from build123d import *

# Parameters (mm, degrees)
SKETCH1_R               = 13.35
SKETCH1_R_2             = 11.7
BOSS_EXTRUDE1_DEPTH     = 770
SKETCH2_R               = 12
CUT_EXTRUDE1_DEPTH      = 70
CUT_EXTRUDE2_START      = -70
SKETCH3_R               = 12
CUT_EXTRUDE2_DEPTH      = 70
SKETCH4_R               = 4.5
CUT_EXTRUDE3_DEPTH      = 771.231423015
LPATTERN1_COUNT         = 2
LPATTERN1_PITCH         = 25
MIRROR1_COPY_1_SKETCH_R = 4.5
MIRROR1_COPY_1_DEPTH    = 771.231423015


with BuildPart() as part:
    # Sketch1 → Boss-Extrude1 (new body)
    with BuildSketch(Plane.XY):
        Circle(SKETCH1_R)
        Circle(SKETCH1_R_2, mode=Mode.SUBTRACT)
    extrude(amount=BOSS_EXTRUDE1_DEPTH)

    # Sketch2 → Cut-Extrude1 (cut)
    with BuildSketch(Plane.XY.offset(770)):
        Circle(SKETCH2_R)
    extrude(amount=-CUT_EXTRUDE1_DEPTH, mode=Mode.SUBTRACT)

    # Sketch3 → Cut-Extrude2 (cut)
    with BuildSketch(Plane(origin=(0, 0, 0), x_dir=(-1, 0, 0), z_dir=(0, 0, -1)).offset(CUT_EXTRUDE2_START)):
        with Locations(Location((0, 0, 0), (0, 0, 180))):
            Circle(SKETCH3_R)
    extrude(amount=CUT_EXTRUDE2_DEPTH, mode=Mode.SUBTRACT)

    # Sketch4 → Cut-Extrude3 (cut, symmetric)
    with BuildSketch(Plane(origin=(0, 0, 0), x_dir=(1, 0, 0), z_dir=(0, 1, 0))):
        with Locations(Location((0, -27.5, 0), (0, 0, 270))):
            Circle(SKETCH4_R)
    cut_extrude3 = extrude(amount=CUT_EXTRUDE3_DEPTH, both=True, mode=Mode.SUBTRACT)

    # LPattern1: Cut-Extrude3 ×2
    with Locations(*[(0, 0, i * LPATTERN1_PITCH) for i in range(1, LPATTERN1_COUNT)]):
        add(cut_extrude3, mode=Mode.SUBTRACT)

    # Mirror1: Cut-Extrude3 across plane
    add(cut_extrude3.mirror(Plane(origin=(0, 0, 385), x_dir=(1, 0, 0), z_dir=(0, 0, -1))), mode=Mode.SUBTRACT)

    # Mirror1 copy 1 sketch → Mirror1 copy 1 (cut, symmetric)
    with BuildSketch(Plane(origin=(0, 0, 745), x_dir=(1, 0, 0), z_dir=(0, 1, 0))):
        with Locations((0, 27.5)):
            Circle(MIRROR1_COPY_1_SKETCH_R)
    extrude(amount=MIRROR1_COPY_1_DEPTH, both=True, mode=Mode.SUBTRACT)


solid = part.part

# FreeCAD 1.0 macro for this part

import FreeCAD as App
import Part
import Sketcher
Q = App.Units.Quantity

doc = App.newDocument("Part")
params = doc.addObject("Spreadsheet::Sheet", "Params")
for row, (alias, value) in enumerate([
    ("sketch1_diameter", "26.7 mm"),
    ("sketch1_diameter2", "23.4 mm"),
    ("pad1_length", "770 mm"),
    ("sketch2_diameter", "24 mm"),
    ("pocket1_length", "70 mm"),
    ("sketch3_diameter", "24 mm"),
    ("pocket2_length", "70 mm"),
    ("sketch4_diameter", "9 mm"),
    ("pocket3_length", "1542.462846 mm"),
    ("linearpattern_pitch", "25 mm"),
    ("sketch5_diameter", "9 mm"),
    ("pocket4_length", "1542.462846 mm"),
], start=1):
    params.set(f"A{row}", alias)
    params.set(f"B{row}", "=" + value)
    params.setAlias(f"B{row}", alias)

body = doc.addObject("PartDesign::Body", "Body")

# Sketch on XY plane
sketch1 = body.newObject("Sketcher::SketchObject", "Sketch")
sketch1.AttachmentSupport = (doc.getObject("XY_Plane"), [""])
sketch1.MapMode = "FlatFace"
sketch1.addGeometry([
    Part.Circle(App.Vector(0, 0, 0), App.Vector(0, 0, 1), 13),
    Part.Circle(App.Vector(0, 0, 0), App.Vector(0, 0, 1), 12),
], False)
sketch1.addConstraint([
    Sketcher.Constraint("Coincident", 0, 3, -1, 1),
    Sketcher.Constraint("Coincident", 1, 3, -1, 1),
    Sketcher.Constraint("Diameter", 0, Q("26.7 mm")),
    Sketcher.Constraint("Diameter", 1, Q("23.4 mm")),
])
sketch1.setExpression("Constraints[2]", "Params.sketch1_diameter")
sketch1.setExpression("Constraints[3]", "Params.sketch1_diameter2")
pad1 = body.newObject("PartDesign::Pad", "Pad")
pad1.Profile = sketch1
pad1.setExpression("Length", "Params.pad1_length")

# Sketch on XY plane
sketch2 = body.newObject("Sketcher::SketchObject", "Sketch001")
sketch2.AttachmentSupport = (doc.getObject("XY_Plane"), [""])
sketch2.MapMode = "FlatFace"
sketch2.AttachmentOffset = App.Placement(App.Vector(0, 0, 770), App.Rotation())
sketch2.addGeometry(Part.Circle(App.Vector(0, 0, 0), App.Vector(0, 0, 1), 12), False)
sketch2.addConstraint([
    Sketcher.Constraint("Coincident", 0, 3, -1, 1),
    Sketcher.Constraint("Diameter", 0, Q("24 mm")),
])
sketch2.setExpression("Constraints[1]", "Params.sketch2_diameter")
pocket1 = body.newObject("PartDesign::Pocket", "Pocket")
pocket1.Profile = sketch2
pocket1.setExpression("Length", "Params.pocket1_length")

# Sketch on XY plane
sketch3 = body.newObject("Sketcher::SketchObject", "Sketch002")
sketch3.AttachmentSupport = (doc.getObject("XY_Plane"), [""])
sketch3.MapMode = "FlatFace"
sketch3.AttachmentOffset = App.Placement(App.Vector(0, 0, 70), App.Rotation())
sketch3.addGeometry(Part.Circle(App.Vector(0, 0, 0), App.Vector(0, 0, 1), 12), False)
sketch3.addConstraint([
    Sketcher.Constraint("Coincident", 0, 3, -1, 1),
    Sketcher.Constraint("Diameter", 0, Q("24 mm")),
])
sketch3.setExpression("Constraints[1]", "Params.sketch3_diameter")
pocket2 = body.newObject("PartDesign::Pocket", "Pocket001")
pocket2.Profile = sketch3
pocket2.setExpression("Length", "Params.pocket2_length")

# Sketch on XZ plane
sketch4 = body.newObject("Sketcher::SketchObject", "Sketch003")
sketch4.AttachmentSupport = (doc.getObject("XZ_Plane"), [""])
sketch4.MapMode = "FlatFace"
sketch4.addGeometry(Part.Circle(App.Vector(0, 27.5, 0), App.Vector(0, 0, 1), 4.5), False)
sketch4.addConstraint([
    Sketcher.Constraint("PointOnObject", 0, 3, -2),
    Sketcher.Constraint("Diameter", 0, Q("9 mm")),
    Sketcher.Constraint("DistanceY", -1, 1, 0, 3, Q("27.5 mm")),
])
sketch4.setExpression("Constraints[1]", "Params.sketch4_diameter")
pocket3 = body.newObject("PartDesign::Pocket", "Pocket002")
pocket3.Profile = sketch4
pocket3.setExpression("Length", "Params.pocket3_length")
pocket3.Midplane = True
doc.recompute()

linearpattern = body.newObject("PartDesign::LinearPattern", "LinearPattern")
linearpattern.Originals = [pocket3]
linearpattern.Direction = (doc.getObject("Z_Axis"), [""])
linearpattern.Mode = "offset"
linearpattern.setExpression("Offset", "Params.linearpattern_pitch")
linearpattern.Occurrences = 2
body.Tip = linearpattern
doc.recompute()

datumplane = body.newObject("PartDesign::Plane", "DatumPlane")
datumplane.AttachmentSupport = (doc.getObject("XY_Plane"), [""])
datumplane.MapMode = "FlatFace"
datumplane.AttachmentOffset = App.Placement(App.Vector(0, 0, 385), App.Rotation())
mirrored = body.newObject("PartDesign::Mirrored", "Mirrored")
mirrored.Originals = [pocket3]
mirrored.MirrorPlane = (datumplane, [""])
body.Tip = mirrored

# Sketch on XZ plane
sketch5 = body.newObject("Sketcher::SketchObject", "Sketch004")
sketch5.AttachmentSupport = (doc.getObject("XZ_Plane"), [""])
sketch5.MapMode = "FlatFace"
sketch5.addGeometry(Part.Circle(App.Vector(0, 717.5, 0), App.Vector(0, 0, 1), 4.5), False)
sketch5.addConstraint([
    Sketcher.Constraint("PointOnObject", 0, 3, -2),
    Sketcher.Constraint("Diameter", 0, Q("9 mm")),
    Sketcher.Constraint("DistanceY", -1, 1, 0, 3, Q("717.5 mm")),
])
sketch5.setExpression("Constraints[1]", "Params.sketch5_diameter")
pocket4 = body.newObject("PartDesign::Pocket", "Pocket003")
pocket4.Profile = sketch5
pocket4.setExpression("Length", "Params.pocket4_length")
pocket4.Midplane = True

doc.recompute()
